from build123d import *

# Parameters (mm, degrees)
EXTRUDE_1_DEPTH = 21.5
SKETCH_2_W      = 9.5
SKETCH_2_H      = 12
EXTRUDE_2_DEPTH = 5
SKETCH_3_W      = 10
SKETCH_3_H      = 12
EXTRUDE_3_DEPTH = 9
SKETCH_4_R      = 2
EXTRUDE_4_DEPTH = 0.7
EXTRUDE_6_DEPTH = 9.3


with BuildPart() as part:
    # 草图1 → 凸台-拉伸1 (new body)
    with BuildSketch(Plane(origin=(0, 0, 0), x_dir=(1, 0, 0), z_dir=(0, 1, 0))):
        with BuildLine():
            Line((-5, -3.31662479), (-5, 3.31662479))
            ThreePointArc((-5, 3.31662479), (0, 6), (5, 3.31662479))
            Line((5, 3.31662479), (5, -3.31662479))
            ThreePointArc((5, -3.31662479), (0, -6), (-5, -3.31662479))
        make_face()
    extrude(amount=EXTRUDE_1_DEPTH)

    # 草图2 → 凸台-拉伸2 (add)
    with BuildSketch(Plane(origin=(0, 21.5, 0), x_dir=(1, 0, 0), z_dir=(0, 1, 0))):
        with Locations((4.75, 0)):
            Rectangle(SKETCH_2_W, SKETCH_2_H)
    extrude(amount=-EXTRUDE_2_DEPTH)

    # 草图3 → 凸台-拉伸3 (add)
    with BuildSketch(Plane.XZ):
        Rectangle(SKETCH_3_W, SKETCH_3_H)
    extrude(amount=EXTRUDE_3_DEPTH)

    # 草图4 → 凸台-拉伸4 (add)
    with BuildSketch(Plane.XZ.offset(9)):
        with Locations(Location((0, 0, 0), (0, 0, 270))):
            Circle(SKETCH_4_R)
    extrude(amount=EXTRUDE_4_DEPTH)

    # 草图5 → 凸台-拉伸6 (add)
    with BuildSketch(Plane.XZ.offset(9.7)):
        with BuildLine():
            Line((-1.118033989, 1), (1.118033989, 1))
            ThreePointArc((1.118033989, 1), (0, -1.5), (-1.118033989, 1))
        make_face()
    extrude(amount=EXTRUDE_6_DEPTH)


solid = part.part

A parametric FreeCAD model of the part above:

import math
import FreeCAD as App
import Part
import Sketcher
from FreeCAD import Vector


def add_polygon(sketch, points):
    """Adds a closed chain of lines whose ends are joined by coincident constraints."""
    first, n = sketch.GeometryCount, len(points)
    for a, b in zip(points, points[1:] + points[:1]):
        sketch.addGeometry(Part.LineSegment(App.Vector(*a, 0), App.Vector(*b, 0)), False)
    for i in range(n):
        sketch.addConstraint(Sketcher.Constraint("Coincident", first + i, 2, first + (i + 1) % n, 1))

doc = App.newDocument("Part")
body = doc.addObject("PartDesign::Body", "Body")

sketch1 = body.newObject("Sketcher::SketchObject", "Sketch")
sketch1.AttachmentSupport = (doc.getObject("XZ_Plane"), [""])
sketch1.MapMode = "FlatFace"
sketch1.addGeometry([
    Part.LineSegment(Vector(-5, -3, 0), Vector(-5, 3, 0)),
    Part.ArcOfCircle(Part.Circle(Vector(0, 0, 0), Vector(0, 0, 1), 6), math.radians(34), math.radians(146)),
    Part.LineSegment(Vector(5, 3, 0), Vector(5, -3, 0)),
    Part.ArcOfCircle(Part.Circle(Vector(0, 0, 0), Vector(0, 0, 1), 6), math.radians(-146), math.radians(-34)),
], False)
sketch1.addConstraint([
    Sketcher.Constraint("Coincident", 0, 2, 1, 2),
    Sketcher.Constraint("Coincident", 1, 1, 2, 1),
    Sketcher.Constraint("Coincident", 2, 2, 3, 2),
    Sketcher.Constraint("Coincident", 3, 1, 0, 1),
    Sketcher.Constraint("Vertical", 0),
    Sketcher.Constraint("Vertical", 2),
    Sketcher.Constraint("Coincident", 1, 3, -1, 1),
    Sketcher.Constraint("Coincident", 3, 3, -1, 1),
    Sketcher.Constraint("Equal", 1, 3),
    Sketcher.Constraint("Horizontal", 0, 2, 1, 1),
    Sketcher.Constraint("Radius", 1, 6.0),
    Sketcher.Constraint("DistanceX", 0, 2, -1, 1, 5.0),
])
pad1 = body.newObject("PartDesign::Pad", "Pad")
pad1.Profile = sketch1
pad1.Length = 21.5
pad1.Reversed = True

sketch2 = body.newObject("Sketcher::SketchObject", "Sketch001")
sketch2.AttachmentSupport = (doc.getObject("XZ_Plane"), [""])
sketch2.MapMode = "FlatFace"
sketch2.AttachmentOffset = App.Placement(Vector(0, 0, -21.5), App.Rotation())
add_polygon(sketch2, [(0, -6), (0, 6), (10, 6), (10, -6)])
sketch2.addConstraint([
    Sketcher.Constraint("Vertical", 0),
    Sketcher.Constraint("Horizontal", 1),
    Sketcher.Constraint("Vertical", 2),
    Sketcher.Constraint("Horizontal", 3),
    Sketcher.Constraint("Symmetric", 0, 2, 3, 2, -1, 1),
    Sketcher.Constraint("DistanceY", 0, 1, 0, 2, 12.0),
    Sketcher.Constraint("DistanceX", 1, 1, 1, 2, 9.5),
])
pad2 = body.newObject("PartDesign::Pad", "Pad001")
pad2.Profile = sketch2
pad2.Length = 5

sketch3 = body.newObject("Sketcher::SketchObject", "Sketch002")
sketch3.AttachmentSupport = (doc.getObject("XZ_Plane"), [""])
sketch3.MapMode = "FlatFace"
add_polygon(sketch3, [(-5, 6), (-5, -6), (5, -6), (5, 6)])
sketch3.addConstraint([
    Sketcher.Constraint("Vertical", 0),
    Sketcher.Constraint("Horizontal", 1),
    Sketcher.Constraint("Vertical", 2),
    Sketcher.Constraint("Horizontal", 3),
    Sketcher.Constraint("Symmetric", 0, 2, 2, 2, -1, 1),
    Sketcher.Constraint("DistanceX", 1, 1, 1, 2, 10.0),
    Sketcher.Constraint("DistanceY", 0, 2, 0, 1, 12.0),
])
pad3 = body.newObject("PartDesign::Pad", "Pad002")
pad3.Profile = sketch3
pad3.Length = 9

sketch4 = body.newObject("Sketcher::SketchObject", "Sketch003")
sketch4.AttachmentSupport = (doc.getObject("XZ_Plane"), [""])
sketch4.MapMode = "FlatFace"
sketch4.AttachmentOffset = App.Placement(Vector(0, 0, 9), App.Rotation())
sketch4.addGeometry(Part.Circle(Vector(0, 0, 0), Vector(0, 0, 1), 2), False)
sketch4.addConstraint([
    Sketcher.Constraint("Coincident", 0, 3, -1, 1),
    Sketcher.Constraint("Diameter", 0, 4.0),
])
pad4 = body.newObject("PartDesign::Pad", "Pad003")
pad4.Profile = sketch4
pad4.Length = 0.7

sketch5 = body.newObject("Sketcher::SketchObject", "Sketch004")
sketch5.AttachmentSupport = (doc.getObject("XZ_Plane"), [""])
sketch5.MapMode = "FlatFace"
sketch5.AttachmentOffset = App.Placement(Vector(0, 0, 9.7), App.Rotation())
sketch5.addGeometry([
    Part.LineSegment(Vector(1.1, 1, 0), Vector(-1.1, 1, 0)),
    Part.ArcOfCircle(Part.Circle(Vector(0, 0, 0), Vector(0, 0, 1), 1.5), math.radians(138), math.radians(402)),
], False)
sketch5.addConstraint([
    Sketcher.Constraint("Coincident", 0, 1, 1, 2),
    Sketcher.Constraint("Coincident", 1, 1, 0, 2),
    Sketcher.Constraint("Horizontal", 0),
    Sketcher.Constraint("Coincident", 1, 3, -1, 1),
    Sketcher.Constraint("Radius", 1, 1.5),
    Sketcher.Constraint("DistanceY", -1, 1, 0, 1, 1.0),
])
pad5 = body.newObject("PartDesign::Pad", "Pad004")
pad5.Profile = sketch5
pad5.Length = 9.3

doc.recompute()
